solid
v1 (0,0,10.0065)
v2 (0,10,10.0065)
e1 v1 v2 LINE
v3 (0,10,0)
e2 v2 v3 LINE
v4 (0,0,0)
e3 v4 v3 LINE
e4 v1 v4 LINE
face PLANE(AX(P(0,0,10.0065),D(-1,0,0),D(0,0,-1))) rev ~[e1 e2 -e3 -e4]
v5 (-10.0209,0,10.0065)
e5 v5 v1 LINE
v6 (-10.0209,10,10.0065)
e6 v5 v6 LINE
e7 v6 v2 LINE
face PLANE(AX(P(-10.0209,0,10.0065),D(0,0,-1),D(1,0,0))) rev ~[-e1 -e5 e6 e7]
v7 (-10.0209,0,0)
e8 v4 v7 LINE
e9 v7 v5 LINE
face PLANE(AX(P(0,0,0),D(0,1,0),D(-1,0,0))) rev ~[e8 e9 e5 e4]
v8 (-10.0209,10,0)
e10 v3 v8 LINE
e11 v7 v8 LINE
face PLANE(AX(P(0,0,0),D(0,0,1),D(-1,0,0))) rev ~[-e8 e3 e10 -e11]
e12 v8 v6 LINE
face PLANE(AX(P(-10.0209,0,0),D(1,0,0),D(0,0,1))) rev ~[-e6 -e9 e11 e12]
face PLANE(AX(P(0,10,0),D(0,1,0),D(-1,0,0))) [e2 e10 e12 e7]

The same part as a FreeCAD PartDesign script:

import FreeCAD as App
import Part
import Sketcher
Q = App.Units.Quantity

doc = App.newDocument("Part")
body = doc.addObject("PartDesign::Body", "Body")

# Sketch on XZ plane
sketch1 = body.newObject("Sketcher::SketchObject", "Sketch")
sketch1.AttachmentSupport = (doc.getObject("XZ_Plane"), [""])
sketch1.MapMode = "FlatFace"
sketch1.addGeometry([
    Part.LineSegment(App.Vector(0, 10, 0), App.Vector(0, 0, 0)),
    Part.LineSegment(App.Vector(0, 0, 0), App.Vector(-10, 0, 0)),
    Part.LineSegment(App.Vector(-10, 0, 0), App.Vector(-10, 10, 0)),
    Part.LineSegment(App.Vector(-10, 10, 0), App.Vector(0, 10, 0)),
], False)
sketch1.addConstraint([
    Sketcher.Constraint("Coincident", 0, 2, 1, 1),
    Sketcher.Constraint("Coincident", 1, 2, 2, 1),
    Sketcher.Constraint("Coincident", 2, 2, 3, 1),
    Sketcher.Constraint("Coincident", 3, 2, 0, 1),
    Sketcher.Constraint("Vertical", 0),
    Sketcher.Constraint("Horizontal", 1),
    Sketcher.Constraint("Vertical", 2),
    Sketcher.Constraint("Horizontal", 3),
    Sketcher.Constraint("Coincident", 0, 2, -1, 1),
    Sketcher.Constraint("DistanceX", 1, 2, 1, 1, Q("10.021 mm")),
    Sketcher.Constraint("DistanceY", 0, 2, 0, 1, Q("10.0065 mm")),
])
pad1 = body.newObject("PartDesign::Pad", "Pad")
pad1.Profile = sketch1
pad1.Length = 10
pad1.Reversed = True

doc.recompute()
